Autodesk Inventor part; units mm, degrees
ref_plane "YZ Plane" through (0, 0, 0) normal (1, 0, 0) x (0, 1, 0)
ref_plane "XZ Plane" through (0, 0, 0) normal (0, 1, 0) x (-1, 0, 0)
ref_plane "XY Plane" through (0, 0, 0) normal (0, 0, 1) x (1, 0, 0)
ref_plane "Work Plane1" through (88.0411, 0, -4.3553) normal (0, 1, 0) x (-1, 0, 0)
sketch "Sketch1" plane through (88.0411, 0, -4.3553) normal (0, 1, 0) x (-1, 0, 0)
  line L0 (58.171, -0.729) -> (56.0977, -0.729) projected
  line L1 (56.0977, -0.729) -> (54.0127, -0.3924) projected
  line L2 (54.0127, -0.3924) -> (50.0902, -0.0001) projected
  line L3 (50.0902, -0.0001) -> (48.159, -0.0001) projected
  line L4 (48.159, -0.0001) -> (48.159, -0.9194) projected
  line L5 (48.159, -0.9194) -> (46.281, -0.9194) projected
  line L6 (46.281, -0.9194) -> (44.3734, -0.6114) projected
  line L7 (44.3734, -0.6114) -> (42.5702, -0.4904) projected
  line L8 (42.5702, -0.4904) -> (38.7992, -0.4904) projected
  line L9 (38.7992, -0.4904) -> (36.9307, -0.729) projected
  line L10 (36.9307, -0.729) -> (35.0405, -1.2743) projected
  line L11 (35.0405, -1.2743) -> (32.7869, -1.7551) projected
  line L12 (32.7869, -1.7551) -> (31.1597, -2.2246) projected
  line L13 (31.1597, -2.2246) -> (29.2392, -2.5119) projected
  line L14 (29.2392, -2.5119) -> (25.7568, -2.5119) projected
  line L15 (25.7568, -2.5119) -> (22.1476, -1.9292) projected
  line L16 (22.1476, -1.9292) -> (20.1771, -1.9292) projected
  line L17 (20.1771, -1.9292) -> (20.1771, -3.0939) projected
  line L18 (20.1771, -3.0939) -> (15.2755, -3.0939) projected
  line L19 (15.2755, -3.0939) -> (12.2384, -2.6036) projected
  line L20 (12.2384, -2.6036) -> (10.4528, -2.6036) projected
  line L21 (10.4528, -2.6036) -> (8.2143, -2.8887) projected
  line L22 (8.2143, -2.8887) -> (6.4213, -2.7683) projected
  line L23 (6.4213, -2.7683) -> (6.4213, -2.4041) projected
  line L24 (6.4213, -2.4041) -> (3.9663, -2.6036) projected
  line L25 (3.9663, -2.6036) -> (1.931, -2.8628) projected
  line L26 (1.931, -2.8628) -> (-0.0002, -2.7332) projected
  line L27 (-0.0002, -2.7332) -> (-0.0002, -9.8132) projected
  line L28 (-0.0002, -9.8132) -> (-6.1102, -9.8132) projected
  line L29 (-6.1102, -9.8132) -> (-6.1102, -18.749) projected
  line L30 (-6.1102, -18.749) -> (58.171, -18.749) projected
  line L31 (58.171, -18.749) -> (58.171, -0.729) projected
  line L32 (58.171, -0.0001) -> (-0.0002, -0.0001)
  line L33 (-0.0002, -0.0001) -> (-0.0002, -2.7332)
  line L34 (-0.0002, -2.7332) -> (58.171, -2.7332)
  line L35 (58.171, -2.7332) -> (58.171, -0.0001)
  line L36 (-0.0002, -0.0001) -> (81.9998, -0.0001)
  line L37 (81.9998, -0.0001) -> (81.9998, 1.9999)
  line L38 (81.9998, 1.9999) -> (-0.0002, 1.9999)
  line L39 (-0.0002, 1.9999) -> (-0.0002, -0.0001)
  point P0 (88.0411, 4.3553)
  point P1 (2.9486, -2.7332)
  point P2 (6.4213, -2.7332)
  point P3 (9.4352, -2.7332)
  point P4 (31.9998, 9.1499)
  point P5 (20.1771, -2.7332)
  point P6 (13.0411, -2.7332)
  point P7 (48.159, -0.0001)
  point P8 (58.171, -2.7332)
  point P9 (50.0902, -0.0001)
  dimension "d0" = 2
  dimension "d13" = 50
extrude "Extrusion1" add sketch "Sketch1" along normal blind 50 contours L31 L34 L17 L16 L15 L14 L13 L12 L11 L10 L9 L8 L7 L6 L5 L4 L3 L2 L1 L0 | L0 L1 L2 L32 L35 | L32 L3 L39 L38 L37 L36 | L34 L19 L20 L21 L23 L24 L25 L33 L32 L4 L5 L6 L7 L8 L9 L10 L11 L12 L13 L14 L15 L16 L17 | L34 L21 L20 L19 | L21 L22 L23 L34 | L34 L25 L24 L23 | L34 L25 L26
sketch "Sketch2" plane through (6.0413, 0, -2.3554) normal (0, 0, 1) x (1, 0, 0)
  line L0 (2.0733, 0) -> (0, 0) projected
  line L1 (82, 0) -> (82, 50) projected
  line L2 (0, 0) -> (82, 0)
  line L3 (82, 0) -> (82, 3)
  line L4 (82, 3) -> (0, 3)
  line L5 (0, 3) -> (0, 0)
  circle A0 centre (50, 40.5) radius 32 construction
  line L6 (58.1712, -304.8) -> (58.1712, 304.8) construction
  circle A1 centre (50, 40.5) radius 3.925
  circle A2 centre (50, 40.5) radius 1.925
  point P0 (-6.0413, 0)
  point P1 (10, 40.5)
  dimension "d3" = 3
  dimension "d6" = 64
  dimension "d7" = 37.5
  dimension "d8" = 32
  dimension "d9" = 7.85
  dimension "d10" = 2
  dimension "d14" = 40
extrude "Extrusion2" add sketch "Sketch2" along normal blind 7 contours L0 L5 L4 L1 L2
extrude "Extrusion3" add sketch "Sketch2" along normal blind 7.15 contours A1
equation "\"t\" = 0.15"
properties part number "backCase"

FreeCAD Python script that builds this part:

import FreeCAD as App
import Part
import Sketcher
Q = App.Units.Quantity


def add_polygon(sketch, points):
    """Adds a closed chain of lines whose ends are joined by coincident constraints."""
    first, n = sketch.GeometryCount, len(points)
    for a, b in zip(points, points[1:] + points[:1]):
        sketch.addGeometry(Part.LineSegment(App.Vector(*a, 0), App.Vector(*b, 0)), False)
    for i in range(n):
        sketch.addConstraint(Sketcher.Constraint("Coincident", first + i, 2, first + (i + 1) % n, 1))

doc = App.newDocument("Part")
body = doc.addObject("PartDesign::Body", "Body")

# Sketch on XZ plane
sketch1 = body.newObject("Sketcher::SketchObject", "Sketch")
sketch1.AttachmentSupport = (doc.getObject("XZ_Plane"), [""])
sketch1.MapMode = "FlatFace"
add_polygon(sketch1, [(29.87, -7.088), (29.87, -4.355), (6.041, -4.355), (6.041, -2.355), (88.041, -2.355), (88.041, -7.088), (86.11, -7.218), (85.092, -7.088), (81.62, -7.088), (81.62, -7.124), (79.827, -7.244), (78.606, -7.088)])  # lines 0-11
sketch1.addConstraint([
    Sketcher.Constraint("Vertical", 0),
    Sketcher.Constraint("Horizontal", 1),
    Sketcher.Constraint("Vertical", 2),
    Sketcher.Constraint("Horizontal", 3),
    Sketcher.Constraint("Vertical", 4),
    Sketcher.Constraint("Horizontal", 7),
    Sketcher.Constraint("Vertical", 8),
    Sketcher.Constraint("Horizontal", 11),
    Sketcher.Constraint("Parallel", 5, 9),
    Sketcher.Constraint("Parallel", 6, 10),
    Sketcher.Constraint("Horizontal", 4, 2, 6, 2),
    Sketcher.Constraint("Horizontal", 7, 2, 10, 2),
    Sketcher.Constraint("DistanceY", 2, 1, 2, 2, 2.0),
    Sketcher.Constraint("DistanceX", 3, 1, 3, 2, 82.0),
    Sketcher.Constraint("Angle", 5, Q("-176.1607 deg")),
    Sketcher.Constraint("DistanceY", 0, 1, 0, 2, 2.733),
    Sketcher.Constraint("DistanceY", 8, 2, 8, 1, 0.035),
    Sketcher.Constraint("DistanceX", -1, 1, 0, 2, 29.87),
    Sketcher.Constraint("DistanceX", -1, 1, 5, 2, 86.11),
    Sketcher.Constraint("Distance", 9, 1.797),
    Sketcher.Constraint("DistanceX", 1, 2, 1, 1, 23.8288),
    Sketcher.Constraint("DistanceX", 7, 2, 7, 1, 3.4727),
    Sketcher.Constraint("DistanceX", 11, 2, 11, 1, 48.7358),
    Sketcher.Constraint("DistanceY", 5, 2, -1, 1, 7.218),
])
pad1 = body.newObject("PartDesign::Pad", "Pad")
pad1.Profile = sketch1
pad1.Length = 50
pad1.Reversed = True

# Sketch on XY plane
sketch2 = body.newObject("Sketcher::SketchObject", "Sketch001")
sketch2.AttachmentSupport = (doc.getObject("XY_Plane"), [""])
sketch2.MapMode = "FlatFace"
sketch2.AttachmentOffset = App.Placement(App.Vector(0, 0, -2.3554), App.Rotation())
add_polygon(sketch2, [(6, 0), (88, 0), (88, 3), (6, 3)])  # lines 0-3
sketch2.addConstraint([
    Sketcher.Constraint("Horizontal", 0),
    Sketcher.Constraint("Vertical", 1),
    Sketcher.Constraint("Horizontal", 2),
    Sketcher.Constraint("Vertical", 3),
    Sketcher.Constraint("PointOnObject", 0, 2, -1),
    Sketcher.Constraint("DistanceY", 1, 1, 1, 2, 3.0),
    Sketcher.Constraint("DistanceX", 0, 1, 0, 2, 82.0),
    Sketcher.Constraint("DistanceX", -1, 1, 0, 2, 88.0413),
])
pad2 = body.newObject("PartDesign::Pad", "Pad001")
pad2.Profile = sketch2
pad2.Length = 7

# Sketch on XY plane
sketch3 = body.newObject("Sketcher::SketchObject", "Sketch002")
sketch3.AttachmentSupport = (doc.getObject("XY_Plane"), [""])
sketch3.MapMode = "FlatFace"
sketch3.AttachmentOffset = App.Placement(App.Vector(0, 0, -2.3554), App.Rotation())
sketch3.addGeometry([
    Part.Circle(App.Vector(56, 40.5, 0), App.Vector(0, 0, 1), 3.9),
    Part.Circle(App.Vector(56, 40.5, 0), App.Vector(0, 0, 1), 1.9),
], False)
sketch3.addConstraint([
    Sketcher.Constraint("Coincident", 1, 3, 0, 3),
    Sketcher.Constraint("Diameter", 0, 7.85),
    Sketcher.Constraint("Diameter", 1, 3.85),
    Sketcher.Constraint("DistanceY", -1, 1, 0, 3, 40.5),
    Sketcher.Constraint("DistanceX", -1, 1, 0, 3, 56.0413),
])
pad3 = body.newObject("PartDesign::Pad", "Pad002")
pad3.Profile = sketch3
pad3.Length = 7.15

doc.recompute()
